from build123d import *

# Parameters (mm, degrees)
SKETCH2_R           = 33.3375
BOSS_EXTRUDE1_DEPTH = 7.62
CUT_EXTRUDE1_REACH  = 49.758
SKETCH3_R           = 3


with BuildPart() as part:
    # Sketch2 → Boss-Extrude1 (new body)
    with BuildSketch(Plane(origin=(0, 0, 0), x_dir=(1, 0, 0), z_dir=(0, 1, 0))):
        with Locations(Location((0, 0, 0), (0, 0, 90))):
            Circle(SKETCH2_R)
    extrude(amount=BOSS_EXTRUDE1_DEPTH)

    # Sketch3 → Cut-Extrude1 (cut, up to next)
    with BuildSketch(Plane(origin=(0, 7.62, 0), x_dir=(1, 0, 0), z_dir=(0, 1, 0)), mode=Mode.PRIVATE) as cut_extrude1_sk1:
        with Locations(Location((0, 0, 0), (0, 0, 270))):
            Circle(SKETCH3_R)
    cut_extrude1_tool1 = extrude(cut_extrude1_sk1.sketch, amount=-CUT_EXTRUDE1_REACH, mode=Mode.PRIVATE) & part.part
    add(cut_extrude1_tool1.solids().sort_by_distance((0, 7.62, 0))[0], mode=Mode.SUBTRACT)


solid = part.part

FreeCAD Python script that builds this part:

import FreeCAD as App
import Part
import Sketcher
from FreeCAD import Vector
Q = App.Units.Quantity

doc = App.newDocument("Part")
body = doc.addObject("PartDesign::Body", "Body")

# Sketch on XZ plane
sketch1 = body.newObject("Sketcher::SketchObject", "Sketch")
sketch1.AttachmentSupport = (doc.getObject("XZ_Plane"), [""])
sketch1.MapMode = "FlatFace"
sketch1.addGeometry(Part.Circle(Vector(0, 0, 0), Vector(0, 0, 1), 33), False)
sketch1.addConstraint([
    Sketcher.Constraint("Coincident", 0, 3, -1, 1),
    Sketcher.Constraint("Diameter", 0, Q("2.625 in")),
])
pad1 = body.newObject("PartDesign::Pad", "Pad")
pad1.Profile = sketch1
pad1.Length = Q("0.3 in")
pad1.Reversed = True

# Sketch on XZ plane
sketch2 = body.newObject("Sketcher::SketchObject", "Sketch001")
sketch2.AttachmentSupport = (doc.getObject("XZ_Plane"), [""])
sketch2.MapMode = "FlatFace"
sketch2.AttachmentOffset = App.Placement(Vector(0, 0, -0.3 * 25.4), App.Rotation())
sketch2.addGeometry(Part.Circle(Vector(0, 0, 0), Vector(0, 0, 1), 3), False)
sketch2.addConstraint([
    Sketcher.Constraint("Coincident", 0, 3, -1, 1),
    Sketcher.Constraint("Diameter", 0, Q("6 mm")),
])
pocket1 = body.newObject("PartDesign::Pocket", "Pocket")
pocket1.Profile = sketch2
pocket1.Type = "UpToFirst"
pocket1.Reversed = True

doc.recompute()
